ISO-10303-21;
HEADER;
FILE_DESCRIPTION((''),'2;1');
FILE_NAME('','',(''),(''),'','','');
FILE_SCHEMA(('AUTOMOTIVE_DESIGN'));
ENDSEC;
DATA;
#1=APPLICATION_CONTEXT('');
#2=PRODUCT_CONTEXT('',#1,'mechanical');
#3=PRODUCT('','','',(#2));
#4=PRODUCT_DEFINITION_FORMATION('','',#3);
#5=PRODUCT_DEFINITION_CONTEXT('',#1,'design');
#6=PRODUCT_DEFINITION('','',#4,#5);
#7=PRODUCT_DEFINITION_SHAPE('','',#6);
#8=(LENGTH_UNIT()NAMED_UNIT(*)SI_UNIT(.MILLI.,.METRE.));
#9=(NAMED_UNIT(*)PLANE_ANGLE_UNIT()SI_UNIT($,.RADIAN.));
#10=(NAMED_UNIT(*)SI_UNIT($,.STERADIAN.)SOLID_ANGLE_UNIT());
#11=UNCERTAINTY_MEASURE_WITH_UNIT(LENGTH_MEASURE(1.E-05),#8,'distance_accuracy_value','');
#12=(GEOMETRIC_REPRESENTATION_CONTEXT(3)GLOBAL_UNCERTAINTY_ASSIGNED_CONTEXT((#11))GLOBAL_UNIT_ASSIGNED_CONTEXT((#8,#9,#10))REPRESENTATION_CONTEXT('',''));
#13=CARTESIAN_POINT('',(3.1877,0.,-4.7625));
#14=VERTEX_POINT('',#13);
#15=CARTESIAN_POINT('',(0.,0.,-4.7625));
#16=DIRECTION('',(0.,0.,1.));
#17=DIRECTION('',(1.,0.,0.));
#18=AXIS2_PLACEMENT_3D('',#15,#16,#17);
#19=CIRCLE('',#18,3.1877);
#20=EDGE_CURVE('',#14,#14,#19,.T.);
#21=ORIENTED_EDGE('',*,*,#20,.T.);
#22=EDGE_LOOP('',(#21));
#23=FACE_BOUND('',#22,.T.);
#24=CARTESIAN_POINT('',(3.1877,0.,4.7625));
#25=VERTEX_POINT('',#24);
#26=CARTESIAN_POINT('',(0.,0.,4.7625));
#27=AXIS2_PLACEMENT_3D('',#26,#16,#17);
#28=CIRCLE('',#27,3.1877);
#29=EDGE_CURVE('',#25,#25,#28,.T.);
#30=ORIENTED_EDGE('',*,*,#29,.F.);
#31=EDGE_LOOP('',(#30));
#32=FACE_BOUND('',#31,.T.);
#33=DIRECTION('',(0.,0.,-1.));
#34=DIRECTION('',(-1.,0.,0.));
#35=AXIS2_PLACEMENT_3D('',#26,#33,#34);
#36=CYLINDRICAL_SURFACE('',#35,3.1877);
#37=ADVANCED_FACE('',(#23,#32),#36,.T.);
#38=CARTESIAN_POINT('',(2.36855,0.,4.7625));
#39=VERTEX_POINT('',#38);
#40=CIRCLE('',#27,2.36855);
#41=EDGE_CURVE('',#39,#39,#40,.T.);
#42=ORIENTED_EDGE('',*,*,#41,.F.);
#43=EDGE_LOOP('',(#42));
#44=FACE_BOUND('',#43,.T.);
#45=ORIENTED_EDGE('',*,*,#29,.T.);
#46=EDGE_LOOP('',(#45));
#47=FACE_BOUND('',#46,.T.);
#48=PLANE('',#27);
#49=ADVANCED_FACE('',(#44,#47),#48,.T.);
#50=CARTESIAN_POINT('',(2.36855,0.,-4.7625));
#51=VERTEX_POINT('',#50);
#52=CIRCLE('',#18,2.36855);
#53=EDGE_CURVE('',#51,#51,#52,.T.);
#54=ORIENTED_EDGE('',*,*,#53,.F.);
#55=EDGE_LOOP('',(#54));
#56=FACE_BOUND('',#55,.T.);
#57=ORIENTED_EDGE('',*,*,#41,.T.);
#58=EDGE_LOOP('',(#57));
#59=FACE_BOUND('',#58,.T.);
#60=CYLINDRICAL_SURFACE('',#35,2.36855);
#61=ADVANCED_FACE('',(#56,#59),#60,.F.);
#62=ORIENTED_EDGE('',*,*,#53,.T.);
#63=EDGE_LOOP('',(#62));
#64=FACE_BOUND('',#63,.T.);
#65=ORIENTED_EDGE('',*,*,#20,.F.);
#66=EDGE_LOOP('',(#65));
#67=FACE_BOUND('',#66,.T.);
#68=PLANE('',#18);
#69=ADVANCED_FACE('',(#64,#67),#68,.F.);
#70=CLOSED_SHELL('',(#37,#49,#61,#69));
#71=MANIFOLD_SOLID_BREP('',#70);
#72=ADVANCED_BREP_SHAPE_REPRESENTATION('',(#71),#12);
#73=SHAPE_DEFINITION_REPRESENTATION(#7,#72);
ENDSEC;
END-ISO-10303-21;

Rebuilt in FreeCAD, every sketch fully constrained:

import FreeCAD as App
import Part
import Sketcher
Q = App.Units.Quantity

doc = App.newDocument("Part")
body = doc.addObject("PartDesign::Body", "Body")

sketch1 = body.newObject("Sketcher::SketchObject", "Sketch")
sketch1.AttachmentSupport = (doc.getObject("XY_Plane"), [""])
sketch1.MapMode = "FlatFace"
sketch1.addGeometry([
    Part.Circle(App.Vector(0, 0, 0), App.Vector(0, 0, 1), 3.2),
    Part.Circle(App.Vector(0, 0, 0), App.Vector(0, 0, 1), 2.4),
], False)
sketch1.addConstraint([
    Sketcher.Constraint("Coincident", 0, 3, -1, 1),
    Sketcher.Constraint("Coincident", 1, 3, -1, 1),
    Sketcher.Constraint("Diameter", 0, Q("0.251 in")),
    Sketcher.Constraint("Diameter", 1, Q("0.1865 in")),
])
pad1 = body.newObject("PartDesign::Pad", "Pad")
pad1.Profile = sketch1
pad1.Length = Q("0.375 in")
pad1.Midplane = True

doc.recompute()
